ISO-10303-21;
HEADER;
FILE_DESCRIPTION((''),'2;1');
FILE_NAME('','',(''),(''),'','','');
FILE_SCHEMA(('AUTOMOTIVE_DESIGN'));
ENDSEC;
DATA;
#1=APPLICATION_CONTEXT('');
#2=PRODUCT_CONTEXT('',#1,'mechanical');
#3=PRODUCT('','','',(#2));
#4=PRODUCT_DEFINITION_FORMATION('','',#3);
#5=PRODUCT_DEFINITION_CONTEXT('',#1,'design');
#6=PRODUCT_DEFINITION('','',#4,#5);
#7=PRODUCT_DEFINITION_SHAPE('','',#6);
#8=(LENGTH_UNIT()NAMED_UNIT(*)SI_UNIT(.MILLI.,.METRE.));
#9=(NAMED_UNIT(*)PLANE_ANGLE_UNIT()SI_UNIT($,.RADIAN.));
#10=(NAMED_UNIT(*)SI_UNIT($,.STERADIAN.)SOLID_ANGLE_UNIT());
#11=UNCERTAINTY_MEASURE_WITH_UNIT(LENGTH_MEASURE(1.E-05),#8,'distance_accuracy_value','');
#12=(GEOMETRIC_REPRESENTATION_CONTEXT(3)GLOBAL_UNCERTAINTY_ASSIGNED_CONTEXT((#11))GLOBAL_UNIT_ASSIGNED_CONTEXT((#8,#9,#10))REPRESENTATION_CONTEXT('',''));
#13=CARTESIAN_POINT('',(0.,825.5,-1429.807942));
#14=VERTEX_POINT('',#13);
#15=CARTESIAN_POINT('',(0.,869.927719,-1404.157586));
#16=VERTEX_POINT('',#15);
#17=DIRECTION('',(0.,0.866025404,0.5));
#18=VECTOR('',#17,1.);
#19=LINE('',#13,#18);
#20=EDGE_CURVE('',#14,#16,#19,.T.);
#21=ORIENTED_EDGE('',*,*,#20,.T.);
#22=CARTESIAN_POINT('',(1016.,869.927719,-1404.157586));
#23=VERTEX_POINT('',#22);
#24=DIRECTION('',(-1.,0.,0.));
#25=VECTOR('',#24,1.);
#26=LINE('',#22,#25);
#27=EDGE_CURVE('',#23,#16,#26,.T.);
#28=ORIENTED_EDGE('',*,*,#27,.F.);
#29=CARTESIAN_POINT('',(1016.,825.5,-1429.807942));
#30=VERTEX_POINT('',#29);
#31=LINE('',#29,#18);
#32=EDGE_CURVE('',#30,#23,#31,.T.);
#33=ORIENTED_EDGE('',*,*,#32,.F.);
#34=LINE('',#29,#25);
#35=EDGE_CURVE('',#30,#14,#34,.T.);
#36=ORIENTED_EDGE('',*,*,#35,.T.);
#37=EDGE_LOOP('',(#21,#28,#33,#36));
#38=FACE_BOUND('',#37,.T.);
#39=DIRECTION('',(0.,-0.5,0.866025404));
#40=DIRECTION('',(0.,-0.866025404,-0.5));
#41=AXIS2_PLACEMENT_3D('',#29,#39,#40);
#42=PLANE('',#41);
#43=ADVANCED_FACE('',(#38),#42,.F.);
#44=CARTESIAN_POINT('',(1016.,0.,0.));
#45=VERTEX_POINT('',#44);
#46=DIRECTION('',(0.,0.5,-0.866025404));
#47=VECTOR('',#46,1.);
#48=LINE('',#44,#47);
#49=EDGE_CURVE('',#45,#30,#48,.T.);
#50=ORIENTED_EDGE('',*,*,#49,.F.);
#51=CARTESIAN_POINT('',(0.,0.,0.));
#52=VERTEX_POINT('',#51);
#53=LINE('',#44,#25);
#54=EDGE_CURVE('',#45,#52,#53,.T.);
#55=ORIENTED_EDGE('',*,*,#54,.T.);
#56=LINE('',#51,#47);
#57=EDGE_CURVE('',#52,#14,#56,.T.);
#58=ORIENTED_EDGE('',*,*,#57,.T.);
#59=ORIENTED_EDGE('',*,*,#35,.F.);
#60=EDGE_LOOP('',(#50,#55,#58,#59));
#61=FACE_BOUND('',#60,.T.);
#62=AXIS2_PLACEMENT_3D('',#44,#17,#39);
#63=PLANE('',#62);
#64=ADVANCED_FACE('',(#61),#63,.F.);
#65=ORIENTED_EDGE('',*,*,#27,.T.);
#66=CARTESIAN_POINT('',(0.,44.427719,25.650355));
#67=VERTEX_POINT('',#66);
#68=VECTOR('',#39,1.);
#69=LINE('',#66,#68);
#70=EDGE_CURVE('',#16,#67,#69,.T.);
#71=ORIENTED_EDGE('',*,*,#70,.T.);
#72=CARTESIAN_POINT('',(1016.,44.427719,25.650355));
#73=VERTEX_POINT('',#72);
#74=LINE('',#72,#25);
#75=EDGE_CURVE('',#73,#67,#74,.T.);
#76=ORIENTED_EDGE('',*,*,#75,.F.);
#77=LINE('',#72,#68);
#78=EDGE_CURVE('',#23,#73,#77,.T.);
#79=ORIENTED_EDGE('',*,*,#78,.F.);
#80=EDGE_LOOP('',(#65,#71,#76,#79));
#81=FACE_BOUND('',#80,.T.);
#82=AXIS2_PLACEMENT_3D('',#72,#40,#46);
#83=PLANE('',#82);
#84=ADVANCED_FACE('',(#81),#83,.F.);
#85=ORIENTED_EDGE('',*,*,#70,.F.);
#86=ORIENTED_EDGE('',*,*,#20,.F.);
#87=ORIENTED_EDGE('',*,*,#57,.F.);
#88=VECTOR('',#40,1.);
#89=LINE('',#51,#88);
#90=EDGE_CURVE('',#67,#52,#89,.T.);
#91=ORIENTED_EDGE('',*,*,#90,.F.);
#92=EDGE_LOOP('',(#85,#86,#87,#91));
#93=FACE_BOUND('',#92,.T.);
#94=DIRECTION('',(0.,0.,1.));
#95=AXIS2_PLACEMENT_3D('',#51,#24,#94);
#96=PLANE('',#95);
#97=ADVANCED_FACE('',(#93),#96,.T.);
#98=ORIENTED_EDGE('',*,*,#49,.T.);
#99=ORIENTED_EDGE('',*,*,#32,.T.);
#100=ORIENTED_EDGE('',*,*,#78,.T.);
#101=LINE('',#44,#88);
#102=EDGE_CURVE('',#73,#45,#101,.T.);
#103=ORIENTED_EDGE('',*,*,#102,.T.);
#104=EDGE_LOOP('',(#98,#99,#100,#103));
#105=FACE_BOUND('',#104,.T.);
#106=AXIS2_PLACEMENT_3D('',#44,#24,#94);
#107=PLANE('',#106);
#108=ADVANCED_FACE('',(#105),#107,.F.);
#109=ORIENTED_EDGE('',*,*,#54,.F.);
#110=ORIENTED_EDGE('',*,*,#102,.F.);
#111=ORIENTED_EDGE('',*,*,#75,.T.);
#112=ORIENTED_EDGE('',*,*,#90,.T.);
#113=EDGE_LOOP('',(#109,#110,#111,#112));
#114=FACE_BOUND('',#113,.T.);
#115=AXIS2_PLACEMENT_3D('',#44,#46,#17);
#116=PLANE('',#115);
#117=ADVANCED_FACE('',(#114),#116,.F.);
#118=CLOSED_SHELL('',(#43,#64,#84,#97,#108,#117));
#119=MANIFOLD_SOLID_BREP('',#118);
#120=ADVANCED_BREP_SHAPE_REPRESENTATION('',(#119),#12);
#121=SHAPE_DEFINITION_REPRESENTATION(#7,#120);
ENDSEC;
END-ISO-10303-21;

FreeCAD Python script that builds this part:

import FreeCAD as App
import Part
import Sketcher
Q = App.Units.Quantity

doc = App.newDocument("Part")
body = doc.addObject("PartDesign::Body", "Body")

# Sketch on YZ plane
sketch1 = body.newObject("Sketcher::SketchObject", "Sketch")
sketch1.AttachmentSupport = (doc.getObject("YZ_Plane"), [""])
sketch1.MapMode = "FlatFace"
sketch1.addGeometry([
    Part.LineSegment(App.Vector(0, 0, 0), App.Vector(826, -1430, 0)),
    Part.LineSegment(App.Vector(826, -1430, 0), App.Vector(870, -1404, 0)),
    Part.LineSegment(App.Vector(870, -1404, 0), App.Vector(44, 26, 0)),
    Part.LineSegment(App.Vector(44, 26, 0), App.Vector(0, 0, 0)),
], False)
sketch1.addConstraint([
    Sketcher.Constraint("Coincident", 0, 2, 1, 1),
    Sketcher.Constraint("Coincident", 1, 2, 2, 1),
    Sketcher.Constraint("Coincident", 2, 2, 3, 1),
    Sketcher.Constraint("Coincident", 3, 2, 0, 1),
    Sketcher.Constraint("Coincident", 3, 2, -1, 1),
    Sketcher.Constraint("Perpendicular", 0, 1),
    Sketcher.Constraint("Perpendicular", 1, 2),
    Sketcher.Constraint("Perpendicular", 2, 3),
    Sketcher.Constraint("Distance", 0, Q("65 in")),
    Sketcher.Constraint("Angle", 0, Q("-60 deg")),
    Sketcher.Constraint("Distance", 1, 51.300711),
])
pad1 = body.newObject("PartDesign::Pad", "Pad")
pad1.Profile = sketch1
pad1.Length = Q("40 in")

doc.recompute()
